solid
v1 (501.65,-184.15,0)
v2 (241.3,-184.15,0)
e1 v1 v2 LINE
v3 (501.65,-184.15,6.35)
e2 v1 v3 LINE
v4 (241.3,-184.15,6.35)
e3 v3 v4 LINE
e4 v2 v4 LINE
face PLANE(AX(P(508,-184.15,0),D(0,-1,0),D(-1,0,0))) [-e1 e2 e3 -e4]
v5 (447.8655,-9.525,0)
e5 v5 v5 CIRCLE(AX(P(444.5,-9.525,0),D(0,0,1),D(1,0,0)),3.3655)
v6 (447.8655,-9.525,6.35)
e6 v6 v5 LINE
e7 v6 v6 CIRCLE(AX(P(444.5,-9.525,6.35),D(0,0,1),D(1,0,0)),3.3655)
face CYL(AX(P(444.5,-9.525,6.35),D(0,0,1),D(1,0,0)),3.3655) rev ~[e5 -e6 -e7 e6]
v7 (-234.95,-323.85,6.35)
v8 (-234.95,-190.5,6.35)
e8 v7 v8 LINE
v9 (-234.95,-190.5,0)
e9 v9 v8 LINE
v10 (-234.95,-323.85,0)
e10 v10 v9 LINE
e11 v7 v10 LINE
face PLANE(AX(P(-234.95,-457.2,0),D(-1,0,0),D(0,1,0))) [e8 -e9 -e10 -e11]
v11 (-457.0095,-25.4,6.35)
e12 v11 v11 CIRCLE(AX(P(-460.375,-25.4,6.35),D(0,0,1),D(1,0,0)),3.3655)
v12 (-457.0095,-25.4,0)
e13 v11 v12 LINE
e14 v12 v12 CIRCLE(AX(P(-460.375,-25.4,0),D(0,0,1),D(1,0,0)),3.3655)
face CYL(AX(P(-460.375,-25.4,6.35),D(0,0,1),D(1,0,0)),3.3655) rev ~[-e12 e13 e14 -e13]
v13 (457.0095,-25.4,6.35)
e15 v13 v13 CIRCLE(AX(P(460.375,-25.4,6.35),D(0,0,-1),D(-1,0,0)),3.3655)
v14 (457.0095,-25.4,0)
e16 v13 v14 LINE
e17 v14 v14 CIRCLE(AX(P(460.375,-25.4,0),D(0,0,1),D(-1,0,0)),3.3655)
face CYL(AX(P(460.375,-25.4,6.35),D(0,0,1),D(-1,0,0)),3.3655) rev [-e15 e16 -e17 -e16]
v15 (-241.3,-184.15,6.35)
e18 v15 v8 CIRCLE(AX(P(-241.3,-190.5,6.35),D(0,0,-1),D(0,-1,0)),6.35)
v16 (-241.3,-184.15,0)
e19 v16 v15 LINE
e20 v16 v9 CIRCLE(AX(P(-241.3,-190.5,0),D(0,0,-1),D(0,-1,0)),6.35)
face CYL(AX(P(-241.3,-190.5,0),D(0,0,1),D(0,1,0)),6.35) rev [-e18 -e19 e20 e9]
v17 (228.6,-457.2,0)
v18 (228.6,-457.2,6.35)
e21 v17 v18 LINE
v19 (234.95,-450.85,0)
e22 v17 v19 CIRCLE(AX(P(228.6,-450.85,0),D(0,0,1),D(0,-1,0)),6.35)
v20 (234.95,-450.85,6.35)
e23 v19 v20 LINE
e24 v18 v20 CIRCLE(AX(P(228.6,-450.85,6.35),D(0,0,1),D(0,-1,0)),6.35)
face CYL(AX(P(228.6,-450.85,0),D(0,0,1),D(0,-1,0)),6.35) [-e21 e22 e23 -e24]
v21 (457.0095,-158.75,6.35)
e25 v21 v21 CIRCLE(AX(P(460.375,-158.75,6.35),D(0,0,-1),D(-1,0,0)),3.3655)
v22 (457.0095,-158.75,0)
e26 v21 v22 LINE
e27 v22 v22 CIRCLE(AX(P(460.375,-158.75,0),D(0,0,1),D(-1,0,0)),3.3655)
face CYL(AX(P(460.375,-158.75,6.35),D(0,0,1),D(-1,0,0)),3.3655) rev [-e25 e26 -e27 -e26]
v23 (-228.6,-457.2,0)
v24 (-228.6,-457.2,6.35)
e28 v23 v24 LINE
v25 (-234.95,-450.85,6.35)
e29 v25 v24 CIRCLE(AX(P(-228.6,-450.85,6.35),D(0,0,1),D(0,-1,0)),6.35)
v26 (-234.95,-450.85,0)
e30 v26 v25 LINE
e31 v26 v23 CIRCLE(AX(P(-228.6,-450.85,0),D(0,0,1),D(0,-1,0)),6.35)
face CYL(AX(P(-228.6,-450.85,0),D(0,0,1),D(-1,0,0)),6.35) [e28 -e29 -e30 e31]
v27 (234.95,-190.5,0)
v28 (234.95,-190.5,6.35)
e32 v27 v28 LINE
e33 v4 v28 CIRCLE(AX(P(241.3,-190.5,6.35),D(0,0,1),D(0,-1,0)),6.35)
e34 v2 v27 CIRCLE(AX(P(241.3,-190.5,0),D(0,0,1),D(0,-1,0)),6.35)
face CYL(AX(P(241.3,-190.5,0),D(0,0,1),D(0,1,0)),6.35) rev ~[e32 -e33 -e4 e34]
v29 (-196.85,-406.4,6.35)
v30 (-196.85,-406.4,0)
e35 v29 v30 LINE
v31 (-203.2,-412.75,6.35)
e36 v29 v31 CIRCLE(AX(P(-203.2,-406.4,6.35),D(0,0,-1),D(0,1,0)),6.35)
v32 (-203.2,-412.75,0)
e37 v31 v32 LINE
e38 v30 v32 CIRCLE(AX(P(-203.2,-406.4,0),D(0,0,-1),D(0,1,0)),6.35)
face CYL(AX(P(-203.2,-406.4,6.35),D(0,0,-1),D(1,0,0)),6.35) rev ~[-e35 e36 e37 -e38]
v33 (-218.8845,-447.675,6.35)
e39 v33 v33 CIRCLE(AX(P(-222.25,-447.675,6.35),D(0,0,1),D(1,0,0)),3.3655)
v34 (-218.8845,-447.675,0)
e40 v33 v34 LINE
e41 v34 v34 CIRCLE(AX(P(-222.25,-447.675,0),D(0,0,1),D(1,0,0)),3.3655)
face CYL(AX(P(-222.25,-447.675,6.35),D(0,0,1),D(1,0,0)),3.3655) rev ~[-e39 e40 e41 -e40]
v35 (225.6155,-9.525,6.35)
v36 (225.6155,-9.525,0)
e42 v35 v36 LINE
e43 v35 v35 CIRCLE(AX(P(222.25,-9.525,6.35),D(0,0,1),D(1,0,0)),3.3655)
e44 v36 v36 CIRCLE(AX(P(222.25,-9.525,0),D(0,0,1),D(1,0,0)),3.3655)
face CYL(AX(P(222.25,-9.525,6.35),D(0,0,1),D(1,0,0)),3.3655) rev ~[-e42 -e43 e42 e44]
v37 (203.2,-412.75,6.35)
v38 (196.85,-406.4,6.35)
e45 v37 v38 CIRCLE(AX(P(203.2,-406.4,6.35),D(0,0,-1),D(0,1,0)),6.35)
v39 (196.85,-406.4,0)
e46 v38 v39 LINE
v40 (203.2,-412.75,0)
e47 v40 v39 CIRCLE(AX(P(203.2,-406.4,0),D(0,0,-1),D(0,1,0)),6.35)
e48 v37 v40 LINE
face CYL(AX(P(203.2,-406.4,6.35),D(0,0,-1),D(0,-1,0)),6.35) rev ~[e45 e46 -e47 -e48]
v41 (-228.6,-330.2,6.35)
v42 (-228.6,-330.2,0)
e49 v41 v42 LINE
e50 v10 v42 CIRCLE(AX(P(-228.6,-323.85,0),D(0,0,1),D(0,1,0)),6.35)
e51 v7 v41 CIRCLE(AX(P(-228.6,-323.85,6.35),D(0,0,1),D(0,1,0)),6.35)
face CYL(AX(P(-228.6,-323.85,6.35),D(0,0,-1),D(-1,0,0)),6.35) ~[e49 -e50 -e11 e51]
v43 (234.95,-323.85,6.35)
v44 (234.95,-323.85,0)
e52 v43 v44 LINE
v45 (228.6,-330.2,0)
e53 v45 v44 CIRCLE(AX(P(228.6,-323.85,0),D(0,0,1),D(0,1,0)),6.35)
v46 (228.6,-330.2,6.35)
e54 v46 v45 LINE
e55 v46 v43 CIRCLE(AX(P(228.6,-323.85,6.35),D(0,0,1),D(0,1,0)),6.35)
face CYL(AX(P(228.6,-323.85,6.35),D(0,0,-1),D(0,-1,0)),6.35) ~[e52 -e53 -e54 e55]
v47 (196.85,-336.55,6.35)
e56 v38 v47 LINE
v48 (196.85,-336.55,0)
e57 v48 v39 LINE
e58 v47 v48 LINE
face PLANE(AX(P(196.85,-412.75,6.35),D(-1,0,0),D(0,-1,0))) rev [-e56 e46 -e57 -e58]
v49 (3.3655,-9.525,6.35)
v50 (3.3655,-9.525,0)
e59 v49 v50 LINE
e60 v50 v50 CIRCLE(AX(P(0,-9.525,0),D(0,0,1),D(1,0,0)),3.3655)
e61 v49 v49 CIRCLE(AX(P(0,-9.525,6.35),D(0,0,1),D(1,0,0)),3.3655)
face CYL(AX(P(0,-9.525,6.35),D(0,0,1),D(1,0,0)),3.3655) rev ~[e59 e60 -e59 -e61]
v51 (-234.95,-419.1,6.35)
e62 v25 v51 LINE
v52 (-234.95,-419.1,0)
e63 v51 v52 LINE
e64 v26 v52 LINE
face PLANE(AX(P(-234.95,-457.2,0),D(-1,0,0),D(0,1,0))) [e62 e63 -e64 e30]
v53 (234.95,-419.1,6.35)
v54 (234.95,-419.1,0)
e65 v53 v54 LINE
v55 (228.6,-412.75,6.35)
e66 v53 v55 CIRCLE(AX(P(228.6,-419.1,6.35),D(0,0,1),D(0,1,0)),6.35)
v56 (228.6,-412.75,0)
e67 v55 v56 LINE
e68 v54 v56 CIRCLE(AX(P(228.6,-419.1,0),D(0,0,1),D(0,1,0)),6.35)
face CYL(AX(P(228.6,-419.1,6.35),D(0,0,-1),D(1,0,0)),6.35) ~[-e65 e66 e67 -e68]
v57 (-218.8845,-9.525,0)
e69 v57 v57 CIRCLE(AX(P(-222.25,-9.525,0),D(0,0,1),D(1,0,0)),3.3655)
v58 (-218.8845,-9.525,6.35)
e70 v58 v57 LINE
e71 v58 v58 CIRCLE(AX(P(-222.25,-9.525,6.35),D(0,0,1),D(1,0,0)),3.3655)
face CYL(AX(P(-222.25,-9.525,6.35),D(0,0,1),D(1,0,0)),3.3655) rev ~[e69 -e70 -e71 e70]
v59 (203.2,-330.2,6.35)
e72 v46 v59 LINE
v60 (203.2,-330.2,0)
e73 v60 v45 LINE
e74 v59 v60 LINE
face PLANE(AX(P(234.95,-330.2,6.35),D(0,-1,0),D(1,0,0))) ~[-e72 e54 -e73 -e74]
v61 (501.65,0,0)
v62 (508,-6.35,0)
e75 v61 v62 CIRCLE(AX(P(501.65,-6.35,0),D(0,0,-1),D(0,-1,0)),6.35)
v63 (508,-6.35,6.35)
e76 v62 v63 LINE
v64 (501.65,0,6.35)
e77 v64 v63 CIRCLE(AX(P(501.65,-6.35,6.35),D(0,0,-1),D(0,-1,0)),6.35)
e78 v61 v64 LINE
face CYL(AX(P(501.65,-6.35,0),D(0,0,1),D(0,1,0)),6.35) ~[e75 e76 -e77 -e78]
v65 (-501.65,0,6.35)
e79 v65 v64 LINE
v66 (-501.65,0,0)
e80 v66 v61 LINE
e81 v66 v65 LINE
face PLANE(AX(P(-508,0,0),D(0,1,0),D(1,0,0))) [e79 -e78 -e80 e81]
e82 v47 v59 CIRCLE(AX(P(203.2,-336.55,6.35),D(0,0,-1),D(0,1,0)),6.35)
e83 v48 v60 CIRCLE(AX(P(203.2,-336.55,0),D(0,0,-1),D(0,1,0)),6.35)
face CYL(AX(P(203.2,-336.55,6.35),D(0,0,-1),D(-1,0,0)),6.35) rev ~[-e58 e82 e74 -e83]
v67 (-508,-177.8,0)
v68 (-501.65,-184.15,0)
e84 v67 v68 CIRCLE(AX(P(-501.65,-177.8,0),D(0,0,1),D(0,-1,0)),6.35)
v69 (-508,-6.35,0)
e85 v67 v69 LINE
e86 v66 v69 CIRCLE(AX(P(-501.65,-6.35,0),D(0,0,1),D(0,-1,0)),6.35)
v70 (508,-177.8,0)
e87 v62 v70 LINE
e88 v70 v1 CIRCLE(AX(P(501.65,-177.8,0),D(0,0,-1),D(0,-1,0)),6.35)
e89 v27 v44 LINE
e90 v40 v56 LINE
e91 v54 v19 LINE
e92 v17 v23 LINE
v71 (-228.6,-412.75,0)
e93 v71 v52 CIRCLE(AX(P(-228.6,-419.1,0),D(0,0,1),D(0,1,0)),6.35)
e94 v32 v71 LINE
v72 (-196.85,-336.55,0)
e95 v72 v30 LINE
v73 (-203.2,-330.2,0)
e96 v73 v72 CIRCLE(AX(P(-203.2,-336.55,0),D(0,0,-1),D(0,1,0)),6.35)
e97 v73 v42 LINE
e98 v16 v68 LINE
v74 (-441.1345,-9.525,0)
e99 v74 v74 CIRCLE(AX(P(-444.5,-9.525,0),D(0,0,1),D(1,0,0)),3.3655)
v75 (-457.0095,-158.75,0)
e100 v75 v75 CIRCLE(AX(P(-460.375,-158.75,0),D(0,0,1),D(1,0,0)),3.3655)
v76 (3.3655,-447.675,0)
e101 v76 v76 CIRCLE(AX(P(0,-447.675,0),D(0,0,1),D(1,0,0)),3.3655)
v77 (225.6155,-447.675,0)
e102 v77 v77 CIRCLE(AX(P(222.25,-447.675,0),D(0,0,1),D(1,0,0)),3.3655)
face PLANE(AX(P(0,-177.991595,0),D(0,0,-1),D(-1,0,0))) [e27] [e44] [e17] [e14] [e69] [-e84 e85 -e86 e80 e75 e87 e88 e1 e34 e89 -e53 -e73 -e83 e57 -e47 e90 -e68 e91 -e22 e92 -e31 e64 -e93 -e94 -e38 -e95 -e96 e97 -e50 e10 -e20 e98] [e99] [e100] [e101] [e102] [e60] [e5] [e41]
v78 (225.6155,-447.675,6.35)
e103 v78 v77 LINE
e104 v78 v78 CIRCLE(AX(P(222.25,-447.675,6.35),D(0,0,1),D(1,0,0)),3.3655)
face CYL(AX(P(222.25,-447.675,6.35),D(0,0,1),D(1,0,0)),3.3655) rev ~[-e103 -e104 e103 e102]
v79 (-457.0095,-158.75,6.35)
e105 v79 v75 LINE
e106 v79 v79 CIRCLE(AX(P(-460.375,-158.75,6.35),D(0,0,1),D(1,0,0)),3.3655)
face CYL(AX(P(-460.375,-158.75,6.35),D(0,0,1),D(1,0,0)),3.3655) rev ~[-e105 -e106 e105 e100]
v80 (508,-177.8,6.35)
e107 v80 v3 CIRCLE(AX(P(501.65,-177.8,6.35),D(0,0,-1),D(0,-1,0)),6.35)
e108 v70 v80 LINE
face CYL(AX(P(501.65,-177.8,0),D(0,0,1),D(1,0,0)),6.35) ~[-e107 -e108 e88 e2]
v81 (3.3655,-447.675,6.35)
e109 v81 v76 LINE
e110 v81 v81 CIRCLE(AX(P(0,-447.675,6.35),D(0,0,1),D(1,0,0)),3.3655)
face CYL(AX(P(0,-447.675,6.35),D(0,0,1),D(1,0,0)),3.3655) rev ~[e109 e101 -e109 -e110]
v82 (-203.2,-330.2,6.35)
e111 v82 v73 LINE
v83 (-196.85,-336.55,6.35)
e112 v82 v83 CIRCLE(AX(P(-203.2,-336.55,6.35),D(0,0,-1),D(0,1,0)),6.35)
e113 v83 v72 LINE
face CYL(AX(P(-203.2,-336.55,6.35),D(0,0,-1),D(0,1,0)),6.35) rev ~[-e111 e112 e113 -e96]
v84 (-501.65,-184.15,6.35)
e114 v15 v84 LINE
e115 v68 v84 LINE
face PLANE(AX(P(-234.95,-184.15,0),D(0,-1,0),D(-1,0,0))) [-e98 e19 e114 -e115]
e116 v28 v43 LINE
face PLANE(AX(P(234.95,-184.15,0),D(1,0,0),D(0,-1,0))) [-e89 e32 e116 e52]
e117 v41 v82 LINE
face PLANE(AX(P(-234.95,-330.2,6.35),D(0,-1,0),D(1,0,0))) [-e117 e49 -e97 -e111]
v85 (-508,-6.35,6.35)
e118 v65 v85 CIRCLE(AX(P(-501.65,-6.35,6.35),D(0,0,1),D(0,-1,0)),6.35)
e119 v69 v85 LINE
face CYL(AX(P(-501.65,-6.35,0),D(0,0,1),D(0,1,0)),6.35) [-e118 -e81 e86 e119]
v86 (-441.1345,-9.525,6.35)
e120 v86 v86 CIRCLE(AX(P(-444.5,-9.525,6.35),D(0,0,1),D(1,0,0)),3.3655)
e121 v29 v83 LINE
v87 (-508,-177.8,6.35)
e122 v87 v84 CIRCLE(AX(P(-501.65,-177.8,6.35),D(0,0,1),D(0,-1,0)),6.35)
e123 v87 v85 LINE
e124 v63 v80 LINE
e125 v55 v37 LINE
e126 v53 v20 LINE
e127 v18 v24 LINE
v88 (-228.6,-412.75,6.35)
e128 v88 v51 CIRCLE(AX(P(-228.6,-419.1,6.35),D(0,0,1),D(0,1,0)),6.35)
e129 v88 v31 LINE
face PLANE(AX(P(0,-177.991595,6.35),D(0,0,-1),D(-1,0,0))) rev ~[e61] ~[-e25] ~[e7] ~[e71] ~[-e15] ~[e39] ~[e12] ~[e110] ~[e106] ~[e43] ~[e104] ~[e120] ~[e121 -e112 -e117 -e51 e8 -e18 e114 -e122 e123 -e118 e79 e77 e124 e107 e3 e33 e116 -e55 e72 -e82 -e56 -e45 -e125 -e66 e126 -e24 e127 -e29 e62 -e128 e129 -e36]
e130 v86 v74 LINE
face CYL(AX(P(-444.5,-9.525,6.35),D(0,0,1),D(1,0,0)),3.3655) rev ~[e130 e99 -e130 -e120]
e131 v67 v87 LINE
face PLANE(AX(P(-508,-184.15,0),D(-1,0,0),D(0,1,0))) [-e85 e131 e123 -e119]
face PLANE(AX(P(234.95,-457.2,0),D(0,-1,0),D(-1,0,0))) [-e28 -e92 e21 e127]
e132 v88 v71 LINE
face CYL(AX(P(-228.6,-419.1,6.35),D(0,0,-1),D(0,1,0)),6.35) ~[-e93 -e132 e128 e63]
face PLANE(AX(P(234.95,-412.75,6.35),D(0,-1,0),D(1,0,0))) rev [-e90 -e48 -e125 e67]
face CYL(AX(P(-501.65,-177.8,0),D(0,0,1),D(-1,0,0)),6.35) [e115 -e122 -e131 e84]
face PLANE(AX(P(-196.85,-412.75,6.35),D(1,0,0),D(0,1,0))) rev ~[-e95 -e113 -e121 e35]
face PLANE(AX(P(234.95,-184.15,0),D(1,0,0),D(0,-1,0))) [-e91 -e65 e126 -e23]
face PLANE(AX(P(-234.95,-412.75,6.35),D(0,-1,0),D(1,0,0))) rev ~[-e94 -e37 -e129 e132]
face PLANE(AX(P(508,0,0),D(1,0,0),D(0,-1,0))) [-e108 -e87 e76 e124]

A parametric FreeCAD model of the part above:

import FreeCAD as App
import Part
import Sketcher
from FreeCAD import Vector
Q = App.Units.Quantity


def edges_at(feature, points):
    """Names of the edges that pass closest to the given points."""
    edges = feature.Shape.Edges
    near = lambda p: min(range(len(edges)), key=lambda i: edges[i].distToShape(Part.Vertex(*p))[0])
    return sorted({f"Edge{near(p) + 1}" for p in points})


def add_polygon(sketch, points):
    """Adds a closed chain of lines whose ends are joined by coincident constraints."""
    first, n = sketch.GeometryCount, len(points)
    for a, b in zip(points, points[1:] + points[:1]):
        sketch.addGeometry(Part.LineSegment(App.Vector(*a, 0), App.Vector(*b, 0)), False)
    for i in range(n):
        sketch.addConstraint(Sketcher.Constraint("Coincident", first + i, 2, first + (i + 1) % n, 1))

doc = App.newDocument("Part")
body = doc.addObject("PartDesign::Body", "Body")

sketch1 = doc.addObject("Sketcher::SketchObject", "Sketch")
body.addObject(sketch1)
sketch1.AttachmentSupport = (doc.XY_Plane, [""])
sketch1.MapMode = "FlatFace"
add_polygon(sketch1, [(508, 0), (-508, 0), (-508, -184), (-235, -184), (-235, -457), (235, -457), (235, -184), (508, -184)])
sketch1.addConstraint(Sketcher.Constraint("Horizontal", 0))
sketch1.addConstraint(Sketcher.Constraint("Vertical", 1))
sketch1.addConstraint(Sketcher.Constraint("Horizontal", 2))
sketch1.addConstraint(Sketcher.Constraint("Vertical", 3))
sketch1.addConstraint(Sketcher.Constraint("Horizontal", 4))
sketch1.addConstraint(Sketcher.Constraint("Vertical", 5))
sketch1.addConstraint(Sketcher.Constraint("Horizontal", 6))
sketch1.addConstraint(Sketcher.Constraint("Vertical", 7))
sketch1.addConstraint(Sketcher.Constraint("Symmetric", 0, 2, 7, 2, -1, 1))
sketch1.addConstraint(Sketcher.Constraint("Symmetric", 2, 2, 5, 2, -2))
sketch1.addConstraint(Sketcher.Constraint("Equal", 6, 3))
sketch1.addConstraint(Sketcher.Constraint("DistanceX", 0, 2, 0, 1, Q("40 in")))
sketch1.addConstraint(Sketcher.Constraint("DistanceX", 4, 1, 4, 2, Q("18.5 in")))
sketch1.addConstraint(Sketcher.Constraint("DistanceY", 3, 2, -1, 1, Q("18 in")))
pad1 = doc.addObject("PartDesign::Pad", "Pad")
body.addObject(pad1)
pad1.Profile = sketch1
pad1.Length = Q("0.25 in")

sketch2 = doc.addObject("Sketcher::SketchObject", "Sketch001")
body.addObject(sketch2)
sketch2.AttachmentSupport = (doc.XY_Plane, [""])
sketch2.MapMode = "FlatFace"
sketch2.AttachmentOffset = App.Placement(Vector(0, 0, 0.25 * 25.4), App.Rotation())
sketch2.addGeometry(Part.Circle(Vector(0, -9.5, 0), Vector(0, 0, 1), 3.4), False)
sketch2.addGeometry(Part.Circle(Vector(0, -447.7, 0), Vector(0, 0, 1), 3.4), False)
sketch2.addGeometry(Part.Circle(Vector(222.2, -9.5, 0), Vector(0, 0, 1), 3.4), False)
sketch2.addGeometry(Part.Circle(Vector(222.2, -447.7, 0), Vector(0, 0, 1), 3.4), False)
sketch2.addGeometry(Part.Circle(Vector(444.5, -9.5, 0), Vector(0, 0, 1), 3.4), False)
sketch2.addGeometry(Part.Circle(Vector(-222.2, -9.5, 0), Vector(0, 0, 1), 3.4), False)
sketch2.addGeometry(Part.Circle(Vector(-222.2, -447.7, 0), Vector(0, 0, 1), 3.4), False)
sketch2.addGeometry(Part.Circle(Vector(-444.5, -9.5, 0), Vector(0, 0, 1), 3.4), False)
sketch2.addConstraint(Sketcher.Constraint("Equal", 0, 1))
sketch2.addConstraint(Sketcher.Constraint("Equal", 1, 2))
sketch2.addConstraint(Sketcher.Constraint("Equal", 2, 3))
sketch2.addConstraint(Sketcher.Constraint("Equal", 3, 4))
sketch2.addConstraint(Sketcher.Constraint("Equal", 4, 5))
sketch2.addConstraint(Sketcher.Constraint("Equal", 5, 6))
sketch2.addConstraint(Sketcher.Constraint("Equal", 6, 7))
sketch2.addConstraint(Sketcher.Constraint("Symmetric", 2, 3, 5, 3, -2))
sketch2.addConstraint(Sketcher.Constraint("Symmetric", 3, 3, 6, 3, -2))
sketch2.addConstraint(Sketcher.Constraint("Symmetric", 4, 3, 7, 3, -2))
sketch2.addConstraint(Sketcher.Constraint("PointOnObject", 0, 3, -2))
sketch2.addConstraint(Sketcher.Constraint("PointOnObject", 1, 3, -2))
sketch2.addConstraint(Sketcher.Constraint("Horizontal", 0, 3, 2, 3))
sketch2.addConstraint(Sketcher.Constraint("Horizontal", 1, 3, 3, 3))
sketch2.addConstraint(Sketcher.Constraint("Horizontal", 2, 3, 4, 3))
sketch2.addConstraint(Sketcher.Constraint("Vertical", 2, 3, 3, 3))
sketch2.addConstraint(Sketcher.Constraint("Diameter", 0, Q("0.265 in")))
sketch2.addConstraint(Sketcher.Constraint("DistanceX", -1, 1, 4, 3, Q("17.5 in")))
sketch2.addConstraint(Sketcher.Constraint("DistanceX", 5, 3, 2, 3, Q("17.5 in")))
sketch2.addConstraint(Sketcher.Constraint("DistanceY", 1, 3, 0, 3, Q("17.25 in")))
sketch2.addConstraint(Sketcher.Constraint("DistanceY", 0, 3, -1, 1, Q("0.375 in")))
pocket1 = doc.addObject("PartDesign::Pocket", "Pocket")
body.addObject(pocket1)
pocket1.Profile = sketch2
pocket1.Type = "ThroughAll"

sketch3 = doc.addObject("Sketcher::SketchObject", "Sketch002")
body.addObject(sketch3)
sketch3.AttachmentSupport = (doc.XY_Plane, [""])
sketch3.MapMode = "FlatFace"
sketch3.AttachmentOffset = App.Placement(Vector(0, 0, 0.25 * 25.4), App.Rotation())
sketch3.addGeometry(Part.Circle(Vector(-460.4, -25.4, 0), Vector(0, 0, 1), 3.4), False)
sketch3.addGeometry(Part.Circle(Vector(-460.4, -158.8, 0), Vector(0, 0, 1), 3.4), False)
sketch3.addConstraint(Sketcher.Constraint("Equal", 0, 1))
sketch3.addConstraint(Sketcher.Constraint("Vertical", 0, 3, 1, 3))
sketch3.addConstraint(Sketcher.Constraint("Diameter", 0, Q("0.265 in")))
sketch3.addConstraint(Sketcher.Constraint("DistanceY", 0, 3, -1, 1, Q("1 in")))
sketch3.addConstraint(Sketcher.Constraint("DistanceY", 1, 3, -1, 1, Q("6.25 in")))
sketch3.addConstraint(Sketcher.Constraint("DistanceX", 0, 3, -1, 1, Q("18.125 in")))
pocket2 = doc.addObject("PartDesign::Pocket", "Pocket001")
body.addObject(pocket2)
pocket2.Profile = sketch3
pocket2.Type = "ThroughAll"
doc.recompute()

mirrored = doc.addObject("PartDesign::Mirrored", "Mirrored")
body.addObject(mirrored)
mirrored.Originals = [pocket2]
mirrored.MirrorPlane = (doc.YZ_Plane, [""])
body.Tip = mirrored

sketch4 = doc.addObject("Sketcher::SketchObject", "Sketch003")
body.addObject(sketch4)
sketch4.AttachmentSupport = (doc.XY_Plane, [""])
sketch4.MapMode = "FlatFace"
sketch4.AttachmentOffset = App.Placement(Vector(0, 0, 0.25 * 25.4), App.Rotation())
add_polygon(sketch4, [(-235, -330), (-235, -413), (-197, -413), (-197, -330)])
sketch4.addConstraint(Sketcher.Constraint("Vertical", 0))
sketch4.addConstraint(Sketcher.Constraint("Horizontal", 1))
sketch4.addConstraint(Sketcher.Constraint("Vertical", 2))
sketch4.addConstraint(Sketcher.Constraint("Horizontal", 3))
sketch4.addConstraint(Sketcher.Constraint("DistanceX", 1, 1, 1, 2, Q("1.5 in")))
sketch4.addConstraint(Sketcher.Constraint("DistanceY", 2, 2, -1, 1, Q("13 in")))
sketch4.addConstraint(Sketcher.Constraint("DistanceY", 0, 2, 0, 1, Q("3.25 in")))
sketch4.addConstraint(Sketcher.Constraint("DistanceX", 0, 2, -1, 1, Q("9.25 in")))
pocket3 = doc.addObject("PartDesign::Pocket", "Pocket002")
body.addObject(pocket3)
pocket3.Profile = sketch4
pocket3.Type = "ThroughAll"
doc.recompute()

mirrored2 = doc.addObject("PartDesign::Mirrored", "Mirrored001")
body.addObject(mirrored2)
mirrored2.Originals = [pocket3]
mirrored2.MirrorPlane = (doc.YZ_Plane, [""])
body.Tip = mirrored2
doc.recompute()

fillet = doc.addObject("PartDesign::Fillet", "Fillet")
body.addObject(fillet)
fillet.Base = (mirrored2, edges_at(mirrored2, [
    (234.95, -330.2, 3.175),
    (234.95, -412.75, 3.175),
    (196.85, -412.75, 3.175),
    (196.85, -330.2, 3.175),
    (-508, 0, 3.175),
    (508, 0, 3.175),
    (508, -184.15, 3.175),
    (234.95, -184.15, 3.175),
    (234.95, -457.2, 3.175),
    (-234.95, -457.2, 3.175),
    (-234.95, -184.15, 3.175),
    (-508, -184.15, 3.175),
    (-234.95, -412.75, 3.175),
    (-234.95, -330.2, 3.175),
    (-196.85, -330.2, 3.175),
    (-196.85, -412.75, 3.175),
]))
fillet.Radius = Q("0.25 in")

doc.recompute()
